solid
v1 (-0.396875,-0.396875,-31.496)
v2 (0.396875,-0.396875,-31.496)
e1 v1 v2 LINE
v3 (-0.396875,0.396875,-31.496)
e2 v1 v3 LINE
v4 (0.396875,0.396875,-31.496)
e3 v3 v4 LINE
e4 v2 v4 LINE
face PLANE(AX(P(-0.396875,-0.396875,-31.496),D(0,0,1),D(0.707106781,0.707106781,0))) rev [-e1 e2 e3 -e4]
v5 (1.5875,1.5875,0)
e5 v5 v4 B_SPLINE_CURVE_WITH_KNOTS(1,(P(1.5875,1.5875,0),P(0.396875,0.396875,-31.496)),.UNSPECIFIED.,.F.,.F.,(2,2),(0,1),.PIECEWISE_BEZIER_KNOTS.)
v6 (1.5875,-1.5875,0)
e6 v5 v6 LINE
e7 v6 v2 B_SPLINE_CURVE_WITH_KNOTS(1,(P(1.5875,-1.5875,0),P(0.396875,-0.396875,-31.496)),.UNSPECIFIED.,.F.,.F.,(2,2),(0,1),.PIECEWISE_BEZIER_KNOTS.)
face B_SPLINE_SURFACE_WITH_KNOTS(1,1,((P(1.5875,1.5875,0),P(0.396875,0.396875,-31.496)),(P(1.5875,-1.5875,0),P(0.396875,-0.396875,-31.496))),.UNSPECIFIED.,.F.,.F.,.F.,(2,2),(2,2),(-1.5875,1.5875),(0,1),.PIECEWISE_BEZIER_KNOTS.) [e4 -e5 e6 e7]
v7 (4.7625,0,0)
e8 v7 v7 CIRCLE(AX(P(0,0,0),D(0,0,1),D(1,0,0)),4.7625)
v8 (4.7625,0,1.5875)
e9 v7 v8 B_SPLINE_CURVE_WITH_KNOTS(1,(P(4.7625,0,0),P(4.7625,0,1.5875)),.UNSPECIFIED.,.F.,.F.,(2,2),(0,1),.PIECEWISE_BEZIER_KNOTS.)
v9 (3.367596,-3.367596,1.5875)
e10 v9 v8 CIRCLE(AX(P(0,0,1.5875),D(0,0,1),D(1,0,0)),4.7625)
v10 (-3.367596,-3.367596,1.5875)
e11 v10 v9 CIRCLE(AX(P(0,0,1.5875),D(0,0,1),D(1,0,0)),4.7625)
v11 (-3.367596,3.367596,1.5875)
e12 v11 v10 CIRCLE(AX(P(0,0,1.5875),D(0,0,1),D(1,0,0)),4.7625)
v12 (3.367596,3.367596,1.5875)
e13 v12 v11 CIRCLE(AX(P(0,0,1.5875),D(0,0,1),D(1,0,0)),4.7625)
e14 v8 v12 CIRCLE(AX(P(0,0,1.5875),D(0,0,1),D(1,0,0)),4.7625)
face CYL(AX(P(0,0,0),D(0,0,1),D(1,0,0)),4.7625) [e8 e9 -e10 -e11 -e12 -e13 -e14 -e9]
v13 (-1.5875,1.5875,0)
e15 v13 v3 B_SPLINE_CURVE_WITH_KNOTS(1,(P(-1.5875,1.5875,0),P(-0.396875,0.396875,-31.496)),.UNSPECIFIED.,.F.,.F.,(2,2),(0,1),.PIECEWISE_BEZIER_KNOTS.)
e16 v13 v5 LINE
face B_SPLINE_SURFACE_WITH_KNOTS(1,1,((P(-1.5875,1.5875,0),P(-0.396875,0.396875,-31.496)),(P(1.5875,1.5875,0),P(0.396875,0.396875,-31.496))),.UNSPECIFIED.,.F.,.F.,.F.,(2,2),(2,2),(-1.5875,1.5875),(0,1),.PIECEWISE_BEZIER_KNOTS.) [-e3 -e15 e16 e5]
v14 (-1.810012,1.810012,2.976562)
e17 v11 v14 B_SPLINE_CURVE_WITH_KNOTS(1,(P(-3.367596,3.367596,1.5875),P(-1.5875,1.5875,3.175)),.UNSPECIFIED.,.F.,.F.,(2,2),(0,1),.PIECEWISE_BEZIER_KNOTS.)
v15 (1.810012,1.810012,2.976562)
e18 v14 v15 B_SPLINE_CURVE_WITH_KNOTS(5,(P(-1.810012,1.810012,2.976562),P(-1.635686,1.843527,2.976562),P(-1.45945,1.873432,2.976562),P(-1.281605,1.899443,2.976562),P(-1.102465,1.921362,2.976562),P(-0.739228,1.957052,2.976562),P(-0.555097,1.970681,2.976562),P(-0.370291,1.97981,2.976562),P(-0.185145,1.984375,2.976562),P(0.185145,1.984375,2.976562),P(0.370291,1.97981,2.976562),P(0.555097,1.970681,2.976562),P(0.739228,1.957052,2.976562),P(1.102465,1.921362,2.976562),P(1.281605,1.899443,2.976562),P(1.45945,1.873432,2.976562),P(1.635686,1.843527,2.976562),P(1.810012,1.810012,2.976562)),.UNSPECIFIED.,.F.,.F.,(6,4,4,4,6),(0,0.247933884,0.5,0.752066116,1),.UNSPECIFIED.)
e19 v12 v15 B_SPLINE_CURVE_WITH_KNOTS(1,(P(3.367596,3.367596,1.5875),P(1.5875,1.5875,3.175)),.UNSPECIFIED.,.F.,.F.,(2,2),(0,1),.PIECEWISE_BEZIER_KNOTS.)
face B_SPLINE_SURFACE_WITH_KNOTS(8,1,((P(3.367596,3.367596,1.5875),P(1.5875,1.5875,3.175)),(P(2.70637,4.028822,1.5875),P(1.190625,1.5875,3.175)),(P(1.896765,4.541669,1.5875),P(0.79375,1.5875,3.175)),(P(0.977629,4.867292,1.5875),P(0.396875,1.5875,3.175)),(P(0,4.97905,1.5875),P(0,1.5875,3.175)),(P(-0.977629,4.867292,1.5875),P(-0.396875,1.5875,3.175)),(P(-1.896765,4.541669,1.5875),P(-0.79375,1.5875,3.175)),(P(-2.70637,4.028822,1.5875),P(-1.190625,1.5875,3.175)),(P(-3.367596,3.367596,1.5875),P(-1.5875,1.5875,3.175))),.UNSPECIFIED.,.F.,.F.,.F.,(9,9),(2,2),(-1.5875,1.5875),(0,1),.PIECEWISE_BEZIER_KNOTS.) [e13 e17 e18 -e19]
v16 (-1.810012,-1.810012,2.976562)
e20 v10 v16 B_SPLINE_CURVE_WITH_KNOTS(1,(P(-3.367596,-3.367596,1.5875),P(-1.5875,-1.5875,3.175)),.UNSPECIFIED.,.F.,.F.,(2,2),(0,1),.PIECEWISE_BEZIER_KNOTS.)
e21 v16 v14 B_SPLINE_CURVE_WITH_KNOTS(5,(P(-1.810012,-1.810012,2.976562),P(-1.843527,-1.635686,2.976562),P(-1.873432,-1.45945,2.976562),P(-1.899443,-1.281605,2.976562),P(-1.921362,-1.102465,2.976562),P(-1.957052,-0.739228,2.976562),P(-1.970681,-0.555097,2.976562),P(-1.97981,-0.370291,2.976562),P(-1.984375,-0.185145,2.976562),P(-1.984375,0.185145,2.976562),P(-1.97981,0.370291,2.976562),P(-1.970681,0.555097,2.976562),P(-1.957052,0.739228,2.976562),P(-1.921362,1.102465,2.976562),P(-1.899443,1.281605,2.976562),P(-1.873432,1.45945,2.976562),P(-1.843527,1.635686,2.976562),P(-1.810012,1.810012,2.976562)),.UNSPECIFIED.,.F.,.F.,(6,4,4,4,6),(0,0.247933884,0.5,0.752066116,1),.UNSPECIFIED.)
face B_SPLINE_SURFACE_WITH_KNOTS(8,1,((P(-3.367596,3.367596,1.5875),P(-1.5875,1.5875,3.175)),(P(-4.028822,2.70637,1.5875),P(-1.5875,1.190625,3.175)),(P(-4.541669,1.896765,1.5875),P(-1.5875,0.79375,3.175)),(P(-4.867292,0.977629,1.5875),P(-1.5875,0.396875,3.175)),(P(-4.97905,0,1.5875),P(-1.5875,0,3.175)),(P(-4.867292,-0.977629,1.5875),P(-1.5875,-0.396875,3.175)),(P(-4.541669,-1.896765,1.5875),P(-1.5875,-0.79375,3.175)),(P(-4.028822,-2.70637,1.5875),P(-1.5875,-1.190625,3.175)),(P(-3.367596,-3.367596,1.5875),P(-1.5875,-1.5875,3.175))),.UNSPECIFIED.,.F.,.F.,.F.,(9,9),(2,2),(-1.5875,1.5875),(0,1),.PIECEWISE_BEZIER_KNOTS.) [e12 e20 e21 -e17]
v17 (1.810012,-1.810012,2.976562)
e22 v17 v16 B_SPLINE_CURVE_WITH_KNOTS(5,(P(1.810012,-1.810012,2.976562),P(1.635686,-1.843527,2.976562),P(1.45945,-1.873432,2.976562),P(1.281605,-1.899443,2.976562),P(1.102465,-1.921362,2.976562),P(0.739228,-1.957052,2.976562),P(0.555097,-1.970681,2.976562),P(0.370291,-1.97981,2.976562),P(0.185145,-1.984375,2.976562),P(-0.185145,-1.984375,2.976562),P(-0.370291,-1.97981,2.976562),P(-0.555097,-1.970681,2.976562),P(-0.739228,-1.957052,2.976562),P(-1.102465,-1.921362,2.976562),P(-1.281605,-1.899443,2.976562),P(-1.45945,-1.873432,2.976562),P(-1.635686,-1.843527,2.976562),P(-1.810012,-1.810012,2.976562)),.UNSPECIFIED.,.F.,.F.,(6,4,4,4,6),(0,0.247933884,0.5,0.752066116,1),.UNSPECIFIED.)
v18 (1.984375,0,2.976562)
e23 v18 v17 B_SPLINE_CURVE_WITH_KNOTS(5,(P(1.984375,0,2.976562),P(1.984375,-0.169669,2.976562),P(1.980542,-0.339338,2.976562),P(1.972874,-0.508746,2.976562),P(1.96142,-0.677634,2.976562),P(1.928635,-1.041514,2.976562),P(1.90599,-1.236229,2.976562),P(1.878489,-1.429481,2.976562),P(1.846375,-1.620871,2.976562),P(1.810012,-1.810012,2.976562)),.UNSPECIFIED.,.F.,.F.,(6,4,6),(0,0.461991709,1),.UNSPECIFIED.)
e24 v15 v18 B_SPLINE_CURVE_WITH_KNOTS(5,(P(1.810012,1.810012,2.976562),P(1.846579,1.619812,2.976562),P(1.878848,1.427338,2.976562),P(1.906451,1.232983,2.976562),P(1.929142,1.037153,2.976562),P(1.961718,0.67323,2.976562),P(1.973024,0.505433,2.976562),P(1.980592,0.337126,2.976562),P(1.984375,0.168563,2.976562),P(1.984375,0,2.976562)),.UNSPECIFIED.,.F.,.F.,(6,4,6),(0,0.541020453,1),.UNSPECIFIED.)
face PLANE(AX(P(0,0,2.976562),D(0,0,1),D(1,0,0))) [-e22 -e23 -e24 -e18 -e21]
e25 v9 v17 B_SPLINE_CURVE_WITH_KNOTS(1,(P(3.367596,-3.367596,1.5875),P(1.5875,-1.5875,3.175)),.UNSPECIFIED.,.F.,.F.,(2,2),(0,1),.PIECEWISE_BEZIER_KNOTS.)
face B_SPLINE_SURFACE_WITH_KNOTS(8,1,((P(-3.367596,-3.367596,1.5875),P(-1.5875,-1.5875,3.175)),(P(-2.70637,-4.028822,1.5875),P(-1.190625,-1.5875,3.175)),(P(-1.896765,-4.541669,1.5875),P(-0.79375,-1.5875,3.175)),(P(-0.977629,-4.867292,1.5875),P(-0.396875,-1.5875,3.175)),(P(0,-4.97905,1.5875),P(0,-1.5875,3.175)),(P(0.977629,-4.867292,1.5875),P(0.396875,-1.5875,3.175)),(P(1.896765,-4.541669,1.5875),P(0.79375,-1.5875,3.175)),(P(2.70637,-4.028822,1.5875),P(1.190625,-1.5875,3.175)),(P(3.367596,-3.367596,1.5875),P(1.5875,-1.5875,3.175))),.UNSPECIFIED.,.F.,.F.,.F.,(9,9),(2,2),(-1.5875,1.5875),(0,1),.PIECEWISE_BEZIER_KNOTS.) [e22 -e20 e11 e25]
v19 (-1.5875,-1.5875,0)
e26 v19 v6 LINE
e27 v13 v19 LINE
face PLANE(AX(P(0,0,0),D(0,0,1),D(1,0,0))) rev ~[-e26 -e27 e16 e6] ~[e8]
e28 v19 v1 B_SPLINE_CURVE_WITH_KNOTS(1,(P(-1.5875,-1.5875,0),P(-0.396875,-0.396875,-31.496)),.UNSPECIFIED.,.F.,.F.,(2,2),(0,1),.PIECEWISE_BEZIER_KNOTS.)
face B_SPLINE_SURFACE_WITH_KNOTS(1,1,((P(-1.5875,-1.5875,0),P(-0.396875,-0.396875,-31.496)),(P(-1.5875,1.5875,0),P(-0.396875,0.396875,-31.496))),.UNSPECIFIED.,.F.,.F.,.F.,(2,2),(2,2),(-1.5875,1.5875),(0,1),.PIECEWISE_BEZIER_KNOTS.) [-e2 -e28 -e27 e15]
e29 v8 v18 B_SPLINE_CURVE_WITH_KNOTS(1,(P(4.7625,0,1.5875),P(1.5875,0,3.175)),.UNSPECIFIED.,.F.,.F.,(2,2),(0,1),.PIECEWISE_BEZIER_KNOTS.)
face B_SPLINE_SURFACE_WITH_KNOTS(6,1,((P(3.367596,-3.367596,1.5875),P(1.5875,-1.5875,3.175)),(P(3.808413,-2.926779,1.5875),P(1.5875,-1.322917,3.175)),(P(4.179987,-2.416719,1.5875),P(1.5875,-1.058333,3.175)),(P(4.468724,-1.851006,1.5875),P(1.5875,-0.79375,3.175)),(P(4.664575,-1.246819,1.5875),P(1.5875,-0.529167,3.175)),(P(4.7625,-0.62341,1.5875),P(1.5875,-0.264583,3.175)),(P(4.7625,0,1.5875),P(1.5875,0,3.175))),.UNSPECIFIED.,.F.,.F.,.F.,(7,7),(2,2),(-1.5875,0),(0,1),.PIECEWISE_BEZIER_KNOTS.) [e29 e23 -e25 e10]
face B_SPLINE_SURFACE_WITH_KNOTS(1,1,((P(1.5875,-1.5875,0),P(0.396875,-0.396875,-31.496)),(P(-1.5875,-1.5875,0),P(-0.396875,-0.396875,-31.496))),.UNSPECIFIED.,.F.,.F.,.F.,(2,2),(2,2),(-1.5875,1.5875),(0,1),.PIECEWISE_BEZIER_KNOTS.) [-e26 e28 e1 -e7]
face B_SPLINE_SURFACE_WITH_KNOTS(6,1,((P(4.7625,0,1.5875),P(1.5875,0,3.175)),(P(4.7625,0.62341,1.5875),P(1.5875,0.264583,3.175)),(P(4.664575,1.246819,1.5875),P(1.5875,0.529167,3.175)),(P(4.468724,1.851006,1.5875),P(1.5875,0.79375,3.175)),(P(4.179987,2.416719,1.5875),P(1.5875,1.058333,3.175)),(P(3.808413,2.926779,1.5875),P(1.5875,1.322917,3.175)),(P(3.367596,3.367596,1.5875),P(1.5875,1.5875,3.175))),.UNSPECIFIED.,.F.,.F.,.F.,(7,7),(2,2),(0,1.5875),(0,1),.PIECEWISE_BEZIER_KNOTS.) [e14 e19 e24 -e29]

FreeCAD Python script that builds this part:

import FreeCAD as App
import Part
import Sketcher
Q = App.Units.Quantity


def add_polygon(sketch, points):
    """Adds a closed chain of lines whose ends are joined by coincident constraints."""
    first, n = sketch.GeometryCount, len(points)
    for a, b in zip(points, points[1:] + points[:1]):
        sketch.addGeometry(Part.LineSegment(App.Vector(*a, 0), App.Vector(*b, 0)), False)
    for i in range(n):
        sketch.addConstraint(Sketcher.Constraint("Coincident", first + i, 2, first + (i + 1) % n, 1))

doc = App.newDocument("Part")
body = doc.addObject("PartDesign::Body", "Body")

sketch1 = body.newObject("Sketcher::SketchObject", "Sketch")
sketch1.AttachmentSupport = (doc.getObject("XY_Plane"), [""])
sketch1.MapMode = "FlatFace"
sketch1.addGeometry(Part.Circle(App.Vector(0, 0, 0), App.Vector(0, 0, 1), 4.7625), False)
sketch1.addConstraint([
    Sketcher.Constraint("Coincident", 0, 3, -1, 1),
    Sketcher.Constraint("Diameter", 0, Q("0.375 in")),
])

sketch2 = body.newObject("Sketcher::SketchObject", "Sketch001")
sketch2.AttachmentSupport = (doc.getObject("XY_Plane"), [""])
sketch2.MapMode = "FlatFace"
sketch2.AttachmentOffset = App.Placement(App.Vector(0, 0, 0.0625 * 25.4), App.Rotation())
sketch2.addGeometry(Part.Circle(App.Vector(0, 0, 0), App.Vector(0, 0, 1), 4.7625), False)
sketch2.addConstraint([
    Sketcher.Constraint("Coincident", 0, 3, -1, 1),
    Sketcher.Constraint("Diameter", 0, Q("0.375 in")),
])

additiveloft = body.newObject("PartDesign::AdditiveLoft", "AdditiveLoft")
additiveloft.Profile = sketch1
additiveloft.Sections = [sketch2]

sketch3 = body.newObject("Sketcher::SketchObject", "Sketch002")
sketch3.AttachmentSupport = (doc.getObject("XY_Plane"), [""])
sketch3.MapMode = "FlatFace"
sketch3.AttachmentOffset = App.Placement(App.Vector(0, 0, 0.0625 * 25.4), App.Rotation())
sketch3.addGeometry(Part.Circle(App.Vector(0, 0, 0), App.Vector(0, 0, 1), 4.7625), False)
sketch3.addConstraint([
    Sketcher.Constraint("Coincident", 0, 3, -1, 1),
    Sketcher.Constraint("Diameter", 0, Q("0.375 in")),
])

sketch4 = body.newObject("Sketcher::SketchObject", "Sketch003")
sketch4.AttachmentSupport = (doc.getObject("XY_Plane"), [""])
sketch4.MapMode = "FlatFace"
sketch4.AttachmentOffset = App.Placement(App.Vector(0, 0, 0.125 * 25.4), App.Rotation())
add_polygon(sketch4, [(-1.5875, 1.5875), (-1.5875, -1.5875), (1.5875, -1.5875), (1.5875, 1.5875)])
sketch4.addConstraint([
    Sketcher.Constraint("Vertical", 0),
    Sketcher.Constraint("Horizontal", 1),
    Sketcher.Constraint("Vertical", 2),
    Sketcher.Constraint("Horizontal", 3),
    Sketcher.Constraint("Symmetric", 0, 2, 2, 2, -1, 1),
    Sketcher.Constraint("Equal", 3, 0),
    Sketcher.Constraint("DistanceX", 1, 1, 1, 2, Q("0.125 in")),
])

additiveloft2 = body.newObject("PartDesign::AdditiveLoft", "AdditiveLoft001")
additiveloft2.Profile = sketch3
additiveloft2.Sections = [sketch4]

sketch5 = body.newObject("Sketcher::SketchObject", "Sketch004")
sketch5.AttachmentSupport = (doc.getObject("XY_Plane"), [""])
sketch5.MapMode = "FlatFace"
add_polygon(sketch5, [(-1.5875, -1.5875), (-1.5875, 1.5875), (1.5875, 1.5875), (1.5875, -1.5875)])
sketch5.addConstraint([
    Sketcher.Constraint("Vertical", 0),
    Sketcher.Constraint("Horizontal", 1),
    Sketcher.Constraint("Vertical", 2),
    Sketcher.Constraint("Horizontal", 3),
    Sketcher.Constraint("Symmetric", 0, 2, 2, 2, -1, 1),
    Sketcher.Constraint("Equal", 3, 0),
    Sketcher.Constraint("DistanceX", 1, 1, 1, 2, Q("0.125 in")),
])

sketch6 = body.newObject("Sketcher::SketchObject", "Sketch005")
sketch6.AttachmentSupport = (doc.getObject("XY_Plane"), [""])
sketch6.MapMode = "FlatFace"
sketch6.AttachmentOffset = App.Placement(App.Vector(0, 0, -1.24 * 25.4), App.Rotation())
add_polygon(sketch6, [(-0.396875, 0.396875), (-0.396875, -0.396875), (0.396875, -0.396875), (0.396875, 0.396875)])
sketch6.addConstraint([
    Sketcher.Constraint("Vertical", 0),
    Sketcher.Constraint("Horizontal", 1),
    Sketcher.Constraint("Vertical", 2),
    Sketcher.Constraint("Horizontal", 3),
    Sketcher.Constraint("Symmetric", 0, 2, 2, 2, -1, 1),
    Sketcher.Constraint("Equal", 3, 0),
    Sketcher.Constraint("DistanceX", 1, 1, 1, 2, Q("0.03125 in")),
])

additiveloft3 = body.newObject("PartDesign::AdditiveLoft", "AdditiveLoft002")
additiveloft3.Profile = sketch5
additiveloft3.Sections = [sketch6]

sketch7 = body.newObject("Sketcher::SketchObject", "Sketch006")
sketch7.AttachmentSupport = (doc.getObject("XY_Plane"), [""])
sketch7.MapMode = "FlatFace"
sketch7.AttachmentOffset = App.Placement(App.Vector(0, 0, 0.125 * 25.4), App.Rotation())
sketch7.addGeometry(Part.Circle(App.Vector(0, 0, 0), App.Vector(0, 0, 1), 2.641939), False)
sketch7.addConstraint([
    Sketcher.Constraint("Coincident", 0, 3, -1, 1),
    Sketcher.Constraint("Diameter", 0, Q("5.283878 mm")),
])
pocket1 = body.newObject("PartDesign::Pocket", "Pocket")
pocket1.Profile = sketch7
pocket1.Length = 0.198437

doc.recompute()
